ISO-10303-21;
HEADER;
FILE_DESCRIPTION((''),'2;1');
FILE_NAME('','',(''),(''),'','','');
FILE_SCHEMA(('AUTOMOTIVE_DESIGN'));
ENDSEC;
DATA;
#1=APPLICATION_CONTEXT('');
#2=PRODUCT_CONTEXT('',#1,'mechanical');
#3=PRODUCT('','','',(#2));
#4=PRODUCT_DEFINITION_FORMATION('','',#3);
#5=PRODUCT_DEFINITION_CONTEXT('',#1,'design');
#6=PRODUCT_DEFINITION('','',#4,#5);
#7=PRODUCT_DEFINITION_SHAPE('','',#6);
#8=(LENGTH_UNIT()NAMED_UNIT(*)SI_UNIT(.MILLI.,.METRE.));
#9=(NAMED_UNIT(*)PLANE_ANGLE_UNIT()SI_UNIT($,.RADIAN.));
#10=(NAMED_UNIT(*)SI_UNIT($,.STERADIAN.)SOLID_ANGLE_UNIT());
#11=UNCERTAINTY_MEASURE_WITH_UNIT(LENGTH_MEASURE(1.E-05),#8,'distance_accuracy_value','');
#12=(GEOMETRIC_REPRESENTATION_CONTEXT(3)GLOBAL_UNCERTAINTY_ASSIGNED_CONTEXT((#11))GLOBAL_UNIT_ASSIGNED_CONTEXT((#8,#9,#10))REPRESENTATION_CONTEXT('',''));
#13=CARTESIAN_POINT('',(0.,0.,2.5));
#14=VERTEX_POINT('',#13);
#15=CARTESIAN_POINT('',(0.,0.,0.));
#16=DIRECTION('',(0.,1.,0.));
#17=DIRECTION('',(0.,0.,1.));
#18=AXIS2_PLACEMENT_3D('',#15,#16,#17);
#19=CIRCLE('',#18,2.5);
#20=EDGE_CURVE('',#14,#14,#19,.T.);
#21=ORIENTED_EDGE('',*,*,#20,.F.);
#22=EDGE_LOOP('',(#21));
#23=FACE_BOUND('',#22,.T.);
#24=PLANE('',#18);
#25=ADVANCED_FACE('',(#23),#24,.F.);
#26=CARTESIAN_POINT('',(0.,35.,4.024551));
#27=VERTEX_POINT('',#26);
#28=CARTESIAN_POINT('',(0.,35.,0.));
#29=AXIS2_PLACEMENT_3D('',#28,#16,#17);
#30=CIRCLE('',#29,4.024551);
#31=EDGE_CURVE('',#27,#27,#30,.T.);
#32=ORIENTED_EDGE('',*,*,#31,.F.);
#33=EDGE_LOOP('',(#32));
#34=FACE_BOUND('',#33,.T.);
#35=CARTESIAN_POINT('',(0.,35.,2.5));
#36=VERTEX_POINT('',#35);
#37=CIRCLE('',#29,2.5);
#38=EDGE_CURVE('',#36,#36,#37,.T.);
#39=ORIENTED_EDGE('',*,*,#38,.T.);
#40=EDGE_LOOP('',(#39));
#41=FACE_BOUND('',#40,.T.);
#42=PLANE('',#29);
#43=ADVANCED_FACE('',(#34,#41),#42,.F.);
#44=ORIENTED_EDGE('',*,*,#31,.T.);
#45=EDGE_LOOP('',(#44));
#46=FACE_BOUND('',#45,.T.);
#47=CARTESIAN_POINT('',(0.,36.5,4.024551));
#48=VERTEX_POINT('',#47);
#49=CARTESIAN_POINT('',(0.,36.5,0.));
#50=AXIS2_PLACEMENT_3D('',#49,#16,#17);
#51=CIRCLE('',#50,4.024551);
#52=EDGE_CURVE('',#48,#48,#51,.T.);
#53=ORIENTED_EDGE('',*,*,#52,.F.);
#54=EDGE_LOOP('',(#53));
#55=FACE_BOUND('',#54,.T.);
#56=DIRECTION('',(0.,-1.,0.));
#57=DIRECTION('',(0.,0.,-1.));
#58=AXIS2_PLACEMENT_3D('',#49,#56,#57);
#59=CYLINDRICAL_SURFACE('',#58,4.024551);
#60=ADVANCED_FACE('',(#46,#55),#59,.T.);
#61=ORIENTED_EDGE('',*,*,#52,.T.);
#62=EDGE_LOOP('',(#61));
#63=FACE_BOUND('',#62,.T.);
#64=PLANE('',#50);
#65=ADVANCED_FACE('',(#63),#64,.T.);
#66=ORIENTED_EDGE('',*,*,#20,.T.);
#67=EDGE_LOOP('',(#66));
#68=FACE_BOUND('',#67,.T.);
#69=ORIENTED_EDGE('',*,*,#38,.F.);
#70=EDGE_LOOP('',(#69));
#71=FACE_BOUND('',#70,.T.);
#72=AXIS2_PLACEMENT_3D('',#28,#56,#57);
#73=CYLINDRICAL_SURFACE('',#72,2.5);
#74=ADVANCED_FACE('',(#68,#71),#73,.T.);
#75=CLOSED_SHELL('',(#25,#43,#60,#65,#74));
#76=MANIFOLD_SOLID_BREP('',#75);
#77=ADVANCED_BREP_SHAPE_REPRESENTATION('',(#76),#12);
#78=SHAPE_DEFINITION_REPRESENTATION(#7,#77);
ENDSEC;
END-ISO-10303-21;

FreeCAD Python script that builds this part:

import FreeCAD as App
import Part
import Sketcher

V = App.Vector

doc = App.newDocument("Part")
params = doc.addObject("Spreadsheet::Sheet", "Params")
for row, (alias, value) in enumerate([
    ("sketch1_diameter", "5 mm"),
    ("pad1_length", "35 mm"),
    ("pad2_length", "1.5 mm"),
], start=1):
    params.set(f"A{row}", alias)
    params.set(f"B{row}", "=" + value)
    params.setAlias(f"B{row}", alias)

body = doc.addObject("PartDesign::Body", "Body")

# Sketch on XZ plane
sketch1 = body.newObject("Sketcher::SketchObject", "Sketch")
sketch1.AttachmentSupport = (doc.getObject("XZ_Plane"), [""])
sketch1.MapMode = "FlatFace"
sketch1.addGeometry(Part.Circle(V(0, 0, 0), V(0, 0, 1), 2.5), False)
sketch1.addConstraint([
    Sketcher.Constraint("Coincident", 0, 3, -1, 1),
    Sketcher.Constraint("Diameter", 0, 5.0),
])
sketch1.setExpression("Constraints[1]", "Params.sketch1_diameter")
pad1 = body.newObject("PartDesign::Pad", "Pad")
pad1.Profile = sketch1
pad1.setExpression("Length", "Params.pad1_length")
pad1.Reversed = True

# Sketch on XZ plane
sketch2 = body.newObject("Sketcher::SketchObject", "Sketch001")
sketch2.AttachmentSupport = (doc.getObject("XZ_Plane"), [""])
sketch2.MapMode = "FlatFace"
sketch2.AttachmentOffset = App.Placement(V(0, 0, -35), App.Rotation())
sketch2.addGeometry(Part.Circle(V(0, 0, 0), V(0, 0, 1), 4.024551), False)
sketch2.addConstraint([
    Sketcher.Constraint("Coincident", 0, 3, -1, 1),
    Sketcher.Constraint("Diameter", 0, 8.049103),
])
pad2 = body.newObject("PartDesign::Pad", "Pad001")
pad2.Profile = sketch2
pad2.setExpression("Length", "Params.pad2_length")
pad2.Reversed = True

doc.recompute()
